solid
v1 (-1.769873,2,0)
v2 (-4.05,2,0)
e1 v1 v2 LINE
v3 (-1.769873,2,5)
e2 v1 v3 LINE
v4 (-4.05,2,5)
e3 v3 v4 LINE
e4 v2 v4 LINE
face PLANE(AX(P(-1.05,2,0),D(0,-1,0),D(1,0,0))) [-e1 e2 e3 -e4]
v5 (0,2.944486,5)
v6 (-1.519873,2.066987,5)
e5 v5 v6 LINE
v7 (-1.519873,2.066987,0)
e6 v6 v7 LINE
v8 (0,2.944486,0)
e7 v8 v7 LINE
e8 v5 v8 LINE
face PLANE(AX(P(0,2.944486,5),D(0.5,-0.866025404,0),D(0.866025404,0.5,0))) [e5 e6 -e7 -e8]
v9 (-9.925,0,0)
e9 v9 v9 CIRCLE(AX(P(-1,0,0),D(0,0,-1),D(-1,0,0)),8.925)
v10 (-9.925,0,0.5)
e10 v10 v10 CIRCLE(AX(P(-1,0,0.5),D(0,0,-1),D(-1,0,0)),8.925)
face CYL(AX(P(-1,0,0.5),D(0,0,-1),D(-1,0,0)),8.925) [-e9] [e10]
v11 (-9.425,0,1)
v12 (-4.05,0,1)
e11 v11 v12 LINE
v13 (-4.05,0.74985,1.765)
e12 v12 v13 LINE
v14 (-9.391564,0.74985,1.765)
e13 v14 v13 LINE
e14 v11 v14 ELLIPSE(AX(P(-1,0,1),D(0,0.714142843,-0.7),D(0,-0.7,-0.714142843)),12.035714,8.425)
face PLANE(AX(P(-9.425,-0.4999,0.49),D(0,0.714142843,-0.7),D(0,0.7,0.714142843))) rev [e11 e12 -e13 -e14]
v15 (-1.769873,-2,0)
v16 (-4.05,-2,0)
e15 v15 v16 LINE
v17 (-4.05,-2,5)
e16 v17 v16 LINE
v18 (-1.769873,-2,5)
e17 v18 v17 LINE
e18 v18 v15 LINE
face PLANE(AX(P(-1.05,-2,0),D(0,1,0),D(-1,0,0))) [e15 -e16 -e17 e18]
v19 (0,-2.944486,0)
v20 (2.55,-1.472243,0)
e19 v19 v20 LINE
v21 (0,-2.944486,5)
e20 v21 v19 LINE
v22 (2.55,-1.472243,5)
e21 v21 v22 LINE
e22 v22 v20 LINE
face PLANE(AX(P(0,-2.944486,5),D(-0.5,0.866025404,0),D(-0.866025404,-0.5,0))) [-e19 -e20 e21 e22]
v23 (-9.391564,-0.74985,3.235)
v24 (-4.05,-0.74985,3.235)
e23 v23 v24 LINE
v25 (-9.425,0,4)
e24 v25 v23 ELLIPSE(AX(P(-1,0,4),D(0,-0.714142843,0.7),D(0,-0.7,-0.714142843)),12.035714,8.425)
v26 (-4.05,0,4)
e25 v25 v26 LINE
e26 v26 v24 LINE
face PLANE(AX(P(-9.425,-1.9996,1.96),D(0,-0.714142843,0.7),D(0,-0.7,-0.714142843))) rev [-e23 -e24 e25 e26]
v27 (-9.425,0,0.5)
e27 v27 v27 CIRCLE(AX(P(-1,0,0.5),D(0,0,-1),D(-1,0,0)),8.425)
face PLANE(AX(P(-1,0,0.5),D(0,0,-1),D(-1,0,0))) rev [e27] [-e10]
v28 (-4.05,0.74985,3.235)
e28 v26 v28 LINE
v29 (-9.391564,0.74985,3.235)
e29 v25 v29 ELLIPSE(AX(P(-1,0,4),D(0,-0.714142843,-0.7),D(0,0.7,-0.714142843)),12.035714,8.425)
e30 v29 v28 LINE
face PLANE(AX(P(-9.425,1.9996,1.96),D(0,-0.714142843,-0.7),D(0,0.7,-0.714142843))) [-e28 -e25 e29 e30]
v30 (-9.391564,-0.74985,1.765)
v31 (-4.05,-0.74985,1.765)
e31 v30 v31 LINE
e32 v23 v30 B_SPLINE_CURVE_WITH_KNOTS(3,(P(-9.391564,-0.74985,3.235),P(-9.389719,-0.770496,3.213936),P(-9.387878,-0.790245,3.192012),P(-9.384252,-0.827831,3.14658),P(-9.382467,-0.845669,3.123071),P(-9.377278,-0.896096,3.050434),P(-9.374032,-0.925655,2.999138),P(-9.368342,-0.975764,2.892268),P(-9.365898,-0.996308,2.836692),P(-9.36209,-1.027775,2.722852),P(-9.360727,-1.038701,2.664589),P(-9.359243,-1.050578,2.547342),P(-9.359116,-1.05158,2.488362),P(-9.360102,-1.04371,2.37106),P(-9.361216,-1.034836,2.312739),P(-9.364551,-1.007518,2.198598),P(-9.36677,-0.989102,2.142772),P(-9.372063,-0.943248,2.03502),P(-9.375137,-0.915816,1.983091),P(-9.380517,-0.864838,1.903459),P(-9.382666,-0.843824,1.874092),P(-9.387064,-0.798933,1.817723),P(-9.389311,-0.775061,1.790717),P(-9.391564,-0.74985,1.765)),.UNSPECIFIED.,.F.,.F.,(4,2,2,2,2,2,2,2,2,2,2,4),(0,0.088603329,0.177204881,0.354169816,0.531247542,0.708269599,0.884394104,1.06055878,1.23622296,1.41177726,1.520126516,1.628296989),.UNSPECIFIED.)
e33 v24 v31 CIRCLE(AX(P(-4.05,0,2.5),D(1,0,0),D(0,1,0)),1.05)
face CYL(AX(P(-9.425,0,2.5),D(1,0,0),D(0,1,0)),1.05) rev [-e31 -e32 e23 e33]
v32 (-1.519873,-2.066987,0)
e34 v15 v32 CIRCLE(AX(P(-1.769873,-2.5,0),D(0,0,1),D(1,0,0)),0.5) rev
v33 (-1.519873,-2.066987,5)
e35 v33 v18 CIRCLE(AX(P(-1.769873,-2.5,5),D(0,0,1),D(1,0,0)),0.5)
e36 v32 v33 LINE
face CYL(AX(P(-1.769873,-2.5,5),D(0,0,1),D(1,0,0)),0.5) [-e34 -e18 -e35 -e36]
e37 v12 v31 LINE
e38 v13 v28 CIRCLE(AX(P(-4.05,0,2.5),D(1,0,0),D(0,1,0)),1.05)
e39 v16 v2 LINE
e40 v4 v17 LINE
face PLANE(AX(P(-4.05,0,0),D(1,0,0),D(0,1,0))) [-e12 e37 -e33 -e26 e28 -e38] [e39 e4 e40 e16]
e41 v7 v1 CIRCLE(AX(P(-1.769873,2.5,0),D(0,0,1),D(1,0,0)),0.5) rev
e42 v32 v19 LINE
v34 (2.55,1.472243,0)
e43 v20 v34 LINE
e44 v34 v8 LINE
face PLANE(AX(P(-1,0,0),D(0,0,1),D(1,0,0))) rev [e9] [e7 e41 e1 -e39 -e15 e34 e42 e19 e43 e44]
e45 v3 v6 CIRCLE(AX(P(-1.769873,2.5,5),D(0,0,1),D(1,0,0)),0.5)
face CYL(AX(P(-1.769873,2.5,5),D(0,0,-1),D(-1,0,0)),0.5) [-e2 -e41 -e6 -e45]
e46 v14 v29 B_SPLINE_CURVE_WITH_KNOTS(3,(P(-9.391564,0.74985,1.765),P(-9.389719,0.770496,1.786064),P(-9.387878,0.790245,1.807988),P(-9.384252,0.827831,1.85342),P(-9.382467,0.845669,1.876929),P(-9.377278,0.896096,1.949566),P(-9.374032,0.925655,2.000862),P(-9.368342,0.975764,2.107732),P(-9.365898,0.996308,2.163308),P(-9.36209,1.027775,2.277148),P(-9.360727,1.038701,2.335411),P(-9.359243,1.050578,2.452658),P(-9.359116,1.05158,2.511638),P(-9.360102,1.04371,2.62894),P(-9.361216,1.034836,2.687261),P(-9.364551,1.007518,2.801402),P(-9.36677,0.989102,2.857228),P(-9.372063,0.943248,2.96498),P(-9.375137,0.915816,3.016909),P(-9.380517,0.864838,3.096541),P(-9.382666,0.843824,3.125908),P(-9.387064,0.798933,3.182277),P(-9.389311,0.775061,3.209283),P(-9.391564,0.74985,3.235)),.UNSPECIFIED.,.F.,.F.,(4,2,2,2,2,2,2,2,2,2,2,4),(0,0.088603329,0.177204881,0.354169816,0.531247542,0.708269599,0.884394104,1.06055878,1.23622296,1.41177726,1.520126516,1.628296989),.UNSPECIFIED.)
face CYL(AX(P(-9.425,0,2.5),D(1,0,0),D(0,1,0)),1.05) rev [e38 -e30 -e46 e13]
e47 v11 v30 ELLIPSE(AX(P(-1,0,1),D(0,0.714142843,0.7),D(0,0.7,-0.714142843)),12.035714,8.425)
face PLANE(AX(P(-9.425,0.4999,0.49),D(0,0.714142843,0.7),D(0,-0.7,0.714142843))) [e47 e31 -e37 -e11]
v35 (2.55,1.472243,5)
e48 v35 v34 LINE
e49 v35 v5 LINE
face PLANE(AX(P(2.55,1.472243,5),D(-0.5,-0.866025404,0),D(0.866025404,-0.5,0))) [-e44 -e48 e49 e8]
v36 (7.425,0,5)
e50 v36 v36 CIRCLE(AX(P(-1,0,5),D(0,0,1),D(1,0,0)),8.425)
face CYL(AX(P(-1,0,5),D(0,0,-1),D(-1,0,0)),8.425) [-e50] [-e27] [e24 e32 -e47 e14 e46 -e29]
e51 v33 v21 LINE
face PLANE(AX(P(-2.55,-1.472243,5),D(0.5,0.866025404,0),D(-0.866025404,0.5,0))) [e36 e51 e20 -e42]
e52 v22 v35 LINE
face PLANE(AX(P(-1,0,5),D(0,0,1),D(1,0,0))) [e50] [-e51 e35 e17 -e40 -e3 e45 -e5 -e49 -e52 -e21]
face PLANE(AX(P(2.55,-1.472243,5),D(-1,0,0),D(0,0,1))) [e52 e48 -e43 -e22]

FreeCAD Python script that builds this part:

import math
import FreeCAD as App
import Part
import Sketcher
from FreeCAD import Vector
Q = App.Units.Quantity


def edges_at(feature, points):
    """Names of the edges that pass closest to the given points."""
    edges = feature.Shape.Edges
    near = lambda p: min(range(len(edges)), key=lambda i: edges[i].distToShape(Part.Vertex(*p))[0])
    return sorted({f"Edge{near(p) + 1}" for p in points})


def add_polygon(sketch, points):
    """Adds a closed chain of lines whose ends are joined by coincident constraints."""
    first, n = sketch.GeometryCount, len(points)
    for a, b in zip(points, points[1:] + points[:1]):
        sketch.addGeometry(Part.LineSegment(App.Vector(*a, 0), App.Vector(*b, 0)), False)
    for i in range(n):
        sketch.addConstraint(Sketcher.Constraint("Coincident", first + i, 2, first + (i + 1) % n, 1))

doc = App.newDocument("Part")
body = doc.addObject("PartDesign::Body", "Body")

sketch1 = body.newObject("Sketcher::SketchObject", "Sketch")
sketch1.AttachmentSupport = (doc.getObject("XY_Plane"), [""])
sketch1.MapMode = "FlatFace"
sketch1.addGeometry(Part.Circle(Vector(-1, 0, 0), Vector(0, 0, 1), 8.4), False)
add_polygon(sketch1, [(2.5, -1.5), (0, -2.9), (-2.5, -1.5), (-2.5, 1.5), (0, 2.9), (2.5, 1.5)])
sketch1.addConstraint([
    Sketcher.Constraint("Vertical", 3),
    Sketcher.Constraint("Vertical", 6),
    Sketcher.Constraint("Symmetric", 1, 2, 4, 2, -1, 1),
    Sketcher.Constraint("Symmetric", 2, 2, 5, 2, -1, 1),
    Sketcher.Constraint("PointOnObject", 0, 3, -1),
    Sketcher.Constraint("PointOnObject", 1, 2, -2),
    Sketcher.Constraint("Parallel", 1, 4),
    Sketcher.Constraint("Horizontal", 3, 2, 5, 2),
    Sketcher.Constraint("Diameter", 0, 16.85),
    Sketcher.Constraint("Angle", 1, Q("-150 deg")),
    Sketcher.Constraint("DistanceX", 0, 3, -1, 1, 1.0),
    Sketcher.Constraint("DistanceX", 3, 2, 5, 2, 5.1),
    Sketcher.Constraint("DistanceY", 3, 1, 3, 2, 2.944486),
])
pad1 = body.newObject("PartDesign::Pad", "Pad")
pad1.Profile = sketch1
pad1.Length = 5

sketch2 = body.newObject("Sketcher::SketchObject", "Sketch001")
sketch2.AttachmentSupport = (doc.getObject("YZ_Plane"), [""])
sketch2.MapMode = "FlatFace"
sketch2.AttachmentOffset = App.Placement(Vector(0, 0, -2.55), App.Rotation())
add_polygon(sketch2, [(2, 5), (-2, 5), (-2, 0), (2, 0)])
sketch2.addConstraint([
    Sketcher.Constraint("Horizontal", 0),
    Sketcher.Constraint("Vertical", 1),
    Sketcher.Constraint("Horizontal", 2),
    Sketcher.Constraint("Vertical", 3),
    Sketcher.Constraint("Symmetric", 1, 2, 2, 2, -1, 1),
    Sketcher.Constraint("DistanceX", 0, 2, 0, 1, 4.0),
    Sketcher.Constraint("DistanceY", 1, 2, 1, 1, 5.0),
])
pocket1 = body.newObject("PartDesign::Pocket", "Pocket")
pocket1.Profile = sketch2
pocket1.Type = "TwoLengths"
pocket1.Length = 1.5
pocket1.Length2 = 1.5
pocket1.Reversed = True
doc.recompute()

fillet = body.newObject("PartDesign::Fillet", "Fillet")
fillet.Base = (pocket1, edges_at(pocket1, [(-1.636, 2, 2.5), (-1.636, -2, 2.5)]))
fillet.Radius = 0.5

sketch3 = body.newObject("Sketcher::SketchObject", "Sketch002")
sketch3.AttachmentSupport = (doc.getObject("YZ_Plane"), [""])
sketch3.MapMode = "FlatFace"
sketch3.AttachmentOffset = App.Placement(Vector(0, 0, -4.05), App.Rotation())
sketch3.addGeometry([
    Part.LineSegment(Vector(0, 4, 0), Vector(-0.7, 3.2, 0)),
    Part.ArcOfCircle(Part.Circle(Vector(0, 2.5, 0), Vector(0, 0, 1), 1.1), math.radians(136), math.radians(224)),
    Part.LineSegment(Vector(-0.7, 1.8, 0), Vector(0, 1, 0)),
    Part.LineSegment(Vector(0, 1, 0), Vector(0.7, 1.8, 0)),
    Part.ArcOfCircle(Part.Circle(Vector(0, 2.5, 0), Vector(0, 0, 1), 1.1), math.radians(-44), math.radians(44)),
    Part.LineSegment(Vector(0.7, 3.2, 0), Vector(0, 4, 0)),
], False)
sketch3.addConstraint([
    Sketcher.Constraint("Tangent", 0, 2, 1, 1),
    Sketcher.Constraint("Tangent", 1, 2, 2, 1),
    Sketcher.Constraint("Coincident", 2, 2, 3, 1),
    Sketcher.Constraint("Tangent", 3, 2, 4, 1),
    Sketcher.Constraint("Tangent", 4, 2, 5, 1),
    Sketcher.Constraint("Coincident", 5, 2, 0, 1),
    Sketcher.Constraint("Coincident", 4, 3, 1, 3),
    Sketcher.Constraint("Equal", 1, 4),
    Sketcher.Constraint("Symmetric", 1, 2, 3, 2, -2),
    Sketcher.Constraint("PointOnObject", 5, 2, -2),
    Sketcher.Constraint("Parallel", 0, 3),
    Sketcher.Constraint("Radius", 1, 1.05),
    Sketcher.Constraint("DistanceY", -1, 1, 2, 2, 1.0),
    Sketcher.Constraint("DistanceY", -1, 1, 5, 2, 4.0),
])
pocket2 = body.newObject("PartDesign::Pocket", "Pocket001")
pocket2.Profile = sketch3
pocket2.Type = "ThroughAll"

sketch4 = body.newObject("Sketcher::SketchObject", "Sketch003")
sketch4.AttachmentSupport = (doc.getObject("XY_Plane"), [""])
sketch4.MapMode = "FlatFace"
sketch4.addGeometry([
    Part.Circle(Vector(-1, 0, 0), Vector(0, 0, 1), 9),
    Part.Circle(Vector(-1, 0, 0), Vector(0, 0, 1), 8),
], False)
sketch4.addConstraint([
    Sketcher.Constraint("Coincident", 1, 3, 0, 3),
    Sketcher.Constraint("PointOnObject", 0, 3, -1),
    Sketcher.Constraint("Diameter", 0, 17.85),
    Sketcher.Constraint("Diameter", 1, 16.85),
    Sketcher.Constraint("DistanceX", 0, 3, -1, 1, 1.0),
])
pad2 = body.newObject("PartDesign::Pad", "Pad001")
pad2.Profile = sketch4
pad2.Length = 0.5

doc.recompute()
